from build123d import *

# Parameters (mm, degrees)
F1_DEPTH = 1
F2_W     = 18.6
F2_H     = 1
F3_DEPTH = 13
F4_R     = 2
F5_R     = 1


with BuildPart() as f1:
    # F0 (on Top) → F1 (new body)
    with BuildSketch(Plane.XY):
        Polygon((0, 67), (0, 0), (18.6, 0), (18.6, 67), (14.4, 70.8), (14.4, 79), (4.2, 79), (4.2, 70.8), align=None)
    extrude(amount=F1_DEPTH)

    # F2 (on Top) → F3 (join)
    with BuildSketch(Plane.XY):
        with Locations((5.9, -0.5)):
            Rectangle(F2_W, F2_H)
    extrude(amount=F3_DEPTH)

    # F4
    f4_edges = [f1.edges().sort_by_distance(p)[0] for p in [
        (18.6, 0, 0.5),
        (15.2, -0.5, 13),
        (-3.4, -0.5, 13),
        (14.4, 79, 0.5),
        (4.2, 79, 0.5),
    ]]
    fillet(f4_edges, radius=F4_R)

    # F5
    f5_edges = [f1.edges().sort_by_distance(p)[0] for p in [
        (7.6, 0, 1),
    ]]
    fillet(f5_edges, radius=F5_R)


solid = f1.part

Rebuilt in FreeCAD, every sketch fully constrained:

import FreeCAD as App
import Part
import Sketcher
Q = App.Units.Quantity


def edges_at(feature, points):
    """Names of the edges that pass closest to the given points."""
    edges = feature.Shape.Edges
    near = lambda p: min(range(len(edges)), key=lambda i: edges[i].distToShape(Part.Vertex(*p))[0])
    return sorted({f"Edge{near(p) + 1}" for p in points})


def add_polygon(sketch, points):
    """Adds a closed chain of lines whose ends are joined by coincident constraints."""
    first, n = sketch.GeometryCount, len(points)
    for a, b in zip(points, points[1:] + points[:1]):
        sketch.addGeometry(Part.LineSegment(App.Vector(*a, 0), App.Vector(*b, 0)), False)
    for i in range(n):
        sketch.addConstraint(Sketcher.Constraint("Coincident", first + i, 2, first + (i + 1) % n, 1))

doc = App.newDocument("Part")
body = doc.addObject("PartDesign::Body", "Body")

sketch1 = body.newObject("Sketcher::SketchObject", "Sketch")
sketch1.AttachmentSupport = (doc.getObject("XY_Plane"), [""])
sketch1.MapMode = "FlatFace"
add_polygon(sketch1, [(0, 67), (0, 0), (19, 0), (19, 67), (14, 71), (14, 79), (4, 79), (4, 71)])
sketch1.addConstraint([
    Sketcher.Constraint("Vertical", 0),
    Sketcher.Constraint("Horizontal", 1),
    Sketcher.Constraint("Vertical", 2),
    Sketcher.Constraint("Vertical", 4),
    Sketcher.Constraint("Horizontal", 5),
    Sketcher.Constraint("Vertical", 6),
    Sketcher.Constraint("Coincident", 0, 2, -1, 1),
    Sketcher.Constraint("Horizontal", 3, 2, 6, 2),
    Sketcher.Constraint("Horizontal", 2, 2, 7, 2),
    Sketcher.Constraint("Equal", 3, 7),
    Sketcher.Constraint("DistanceY", 0, 2, 0, 1, Q("67 mm")),
    Sketcher.Constraint("DistanceX", 1, 1, 1, 2, Q("18.6 mm")),
    Sketcher.Constraint("DistanceX", 5, 2, 5, 1, Q("10.2 mm")),
    Sketcher.Constraint("DistanceY", 4, 1, 4, 2, Q("8.2 mm")),
    Sketcher.Constraint("DistanceY", -1, 1, 4, 2, Q("79 mm")),
])
pad1 = body.newObject("PartDesign::Pad", "Pad")
pad1.Profile = sketch1
pad1.Length = 1

sketch2 = body.newObject("Sketcher::SketchObject", "Sketch001")
sketch2.AttachmentSupport = (doc.getObject("XY_Plane"), [""])
sketch2.MapMode = "FlatFace"
add_polygon(sketch2, [(-3.4, 0), (-3.4, -1), (15.2, -1), (15.2, 0)])
sketch2.addConstraint([
    Sketcher.Constraint("Vertical", 0),
    Sketcher.Constraint("Horizontal", 1),
    Sketcher.Constraint("Vertical", 2),
    Sketcher.Constraint("Horizontal", 3),
    Sketcher.Constraint("PointOnObject", 2, 2, -1),
    Sketcher.Constraint("DistanceY", 0, 2, 0, 1, Q("1 mm")),
    Sketcher.Constraint("DistanceX", 1, 1, 1, 2, Q("18.6 mm")),
    Sketcher.Constraint("DistanceX", 0, 2, -1, 1, Q("3.4 mm")),
])
pad2 = body.newObject("PartDesign::Pad", "Pad001")
pad2.Profile = sketch2
pad2.Length = 13
doc.recompute()

fillet = body.newObject("PartDesign::Fillet", "Fillet")
fillet.Base = (pad2, edges_at(pad2, [
    (18.6, 0, 0.5),
    (15.2, -0.5, 13),
    (-3.4, -0.5, 13),
    (14.4, 79, 0.5),
    (4.2, 79, 0.5),
]))
fillet.Radius = 2
doc.recompute()

fillet2 = body.newObject("PartDesign::Fillet", "Fillet001")
fillet2.Base = (fillet, edges_at(fillet, [(7.6, 0, 1)]))
fillet2.Radius = 1

doc.recompute()
